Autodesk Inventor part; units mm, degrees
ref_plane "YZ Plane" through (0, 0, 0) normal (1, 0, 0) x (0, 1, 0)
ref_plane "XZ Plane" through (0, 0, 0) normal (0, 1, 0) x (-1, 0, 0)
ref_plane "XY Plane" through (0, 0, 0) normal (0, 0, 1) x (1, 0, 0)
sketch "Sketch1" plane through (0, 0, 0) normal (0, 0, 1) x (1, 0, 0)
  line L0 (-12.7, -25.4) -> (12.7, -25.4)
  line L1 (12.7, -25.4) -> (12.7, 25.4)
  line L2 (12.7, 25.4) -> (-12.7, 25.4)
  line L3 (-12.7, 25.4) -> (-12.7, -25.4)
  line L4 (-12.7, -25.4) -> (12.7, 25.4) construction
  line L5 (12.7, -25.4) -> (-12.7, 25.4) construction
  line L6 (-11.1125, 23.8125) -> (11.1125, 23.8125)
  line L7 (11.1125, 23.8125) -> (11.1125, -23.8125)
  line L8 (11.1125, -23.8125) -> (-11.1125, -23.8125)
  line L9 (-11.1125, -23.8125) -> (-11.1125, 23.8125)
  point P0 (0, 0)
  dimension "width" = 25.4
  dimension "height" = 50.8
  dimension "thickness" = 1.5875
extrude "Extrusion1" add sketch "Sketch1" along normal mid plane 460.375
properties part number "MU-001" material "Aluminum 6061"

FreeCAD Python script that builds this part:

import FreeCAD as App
import Part
import Sketcher
Q = App.Units.Quantity


def add_polygon(sketch, points):
    """Adds a closed chain of lines whose ends are joined by coincident constraints."""
    first, n = sketch.GeometryCount, len(points)
    for a, b in zip(points, points[1:] + points[:1]):
        sketch.addGeometry(Part.LineSegment(App.Vector(*a, 0), App.Vector(*b, 0)), False)
    for i in range(n):
        sketch.addConstraint(Sketcher.Constraint("Coincident", first + i, 2, first + (i + 1) % n, 1))

doc = App.newDocument("Part")
params = doc.addObject("Spreadsheet::Sheet", "Params")
for row, (alias, value) in enumerate([
    ("sketch1_width", "1 in"),
    ("sketch1_height", "2 in"),
    ("pad1_length", "18.125 in"),
], start=1):
    params.set(f"A{row}", alias)
    params.set(f"B{row}", "=" + value)
    params.setAlias(f"B{row}", alias)

body = doc.addObject("PartDesign::Body", "Body")

# Sketch on XY plane
sketch1 = body.newObject("Sketcher::SketchObject", "Sketch")
sketch1.AttachmentSupport = (doc.getObject("XY_Plane"), [""])
sketch1.MapMode = "FlatFace"
add_polygon(sketch1, [(-13, 25), (-13, -25), (13, -25), (13, 25)])  # lines 0-3
add_polygon(sketch1, [(-11, -24), (-11, 24), (11, 24), (11, -24)])  # lines 4-7
sketch1.addConstraint([
    Sketcher.Constraint("Vertical", 0),
    Sketcher.Constraint("Horizontal", 1),
    Sketcher.Constraint("Vertical", 2),
    Sketcher.Constraint("Horizontal", 3),
    Sketcher.Constraint("Vertical", 4),
    Sketcher.Constraint("Horizontal", 5),
    Sketcher.Constraint("Vertical", 6),
    Sketcher.Constraint("Horizontal", 7),
    Sketcher.Constraint("Symmetric", 0, 2, 2, 2, -1, 1),
    Sketcher.Constraint("Symmetric", 4, 2, 6, 2, -1, 1),
    Sketcher.Constraint("DistanceX", 1, 1, 1, 2, Q("1 in")),
    Sketcher.Constraint("DistanceY", 0, 2, 0, 1, Q("2 in")),
    Sketcher.Constraint("DistanceX", 3, 2, 4, 2, Q("0.0625 in")),
    Sketcher.Constraint("DistanceY", 4, 2, 3, 2, Q("0.0625 in")),
])
sketch1.setExpression("Constraints[18]", "Params.sketch1_width")
sketch1.setExpression("Constraints[19]", "Params.sketch1_height")
pad1 = body.newObject("PartDesign::Pad", "Pad")
pad1.Profile = sketch1
pad1.setExpression("Length", "Params.pad1_length")
pad1.Midplane = True

doc.recompute()
